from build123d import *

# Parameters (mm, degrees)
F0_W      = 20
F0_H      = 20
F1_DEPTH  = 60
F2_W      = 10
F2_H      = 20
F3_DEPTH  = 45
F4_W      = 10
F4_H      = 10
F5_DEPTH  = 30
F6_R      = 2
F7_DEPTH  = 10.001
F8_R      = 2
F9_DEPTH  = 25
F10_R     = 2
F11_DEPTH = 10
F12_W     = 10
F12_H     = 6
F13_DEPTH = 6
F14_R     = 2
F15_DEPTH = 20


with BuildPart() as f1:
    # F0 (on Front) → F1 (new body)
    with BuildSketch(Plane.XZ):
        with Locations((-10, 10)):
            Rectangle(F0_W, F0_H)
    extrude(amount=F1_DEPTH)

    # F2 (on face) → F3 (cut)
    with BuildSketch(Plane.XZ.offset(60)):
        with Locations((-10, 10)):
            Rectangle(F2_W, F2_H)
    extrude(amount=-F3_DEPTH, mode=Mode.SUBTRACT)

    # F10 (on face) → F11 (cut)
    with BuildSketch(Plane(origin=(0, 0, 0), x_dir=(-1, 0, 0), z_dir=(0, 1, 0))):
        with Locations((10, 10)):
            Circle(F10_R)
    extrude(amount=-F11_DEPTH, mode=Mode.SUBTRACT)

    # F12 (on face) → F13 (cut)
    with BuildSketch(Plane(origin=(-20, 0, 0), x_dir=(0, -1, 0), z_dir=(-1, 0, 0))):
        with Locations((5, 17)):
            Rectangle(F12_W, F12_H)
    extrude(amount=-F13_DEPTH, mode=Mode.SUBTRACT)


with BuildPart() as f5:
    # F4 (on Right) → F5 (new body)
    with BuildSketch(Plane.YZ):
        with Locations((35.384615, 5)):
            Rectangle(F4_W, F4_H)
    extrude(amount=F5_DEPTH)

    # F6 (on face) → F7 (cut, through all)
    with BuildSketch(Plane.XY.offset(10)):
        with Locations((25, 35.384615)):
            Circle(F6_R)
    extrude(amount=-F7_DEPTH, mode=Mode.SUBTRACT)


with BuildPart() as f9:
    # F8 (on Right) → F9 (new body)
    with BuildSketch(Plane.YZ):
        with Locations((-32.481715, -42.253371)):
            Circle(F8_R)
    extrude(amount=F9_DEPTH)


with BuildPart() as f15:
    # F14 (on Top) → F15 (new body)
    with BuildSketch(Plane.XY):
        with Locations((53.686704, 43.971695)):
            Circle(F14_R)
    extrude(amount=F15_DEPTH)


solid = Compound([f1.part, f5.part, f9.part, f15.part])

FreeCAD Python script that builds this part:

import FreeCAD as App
import Part
import Sketcher

V = App.Vector


def add_polygon(sketch, points):
    """Adds a closed chain of lines whose ends are joined by coincident constraints."""
    first, n = sketch.GeometryCount, len(points)
    for a, b in zip(points, points[1:] + points[:1]):
        sketch.addGeometry(Part.LineSegment(App.Vector(*a, 0), App.Vector(*b, 0)), False)
    for i in range(n):
        sketch.addConstraint(Sketcher.Constraint("Coincident", first + i, 2, first + (i + 1) % n, 1))

doc = App.newDocument("Part")
body = doc.addObject("PartDesign::Body", "Body")

# Sketch on XZ plane
sketch1 = body.newObject("Sketcher::SketchObject", "Sketch")
sketch1.AttachmentSupport = (doc.getObject("XZ_Plane"), [""])
sketch1.MapMode = "FlatFace"
add_polygon(sketch1, [(-20, 20), (-20, 0), (0, 0), (0, 20)])  # lines 0-3
sketch1.addConstraint([
    Sketcher.Constraint("Vertical", 0),
    Sketcher.Constraint("Horizontal", 1),
    Sketcher.Constraint("Vertical", 2),
    Sketcher.Constraint("Horizontal", 3),
    Sketcher.Constraint("Coincident", 1, 2, -1, 1),
    Sketcher.Constraint("Equal", 3, 0),
    Sketcher.Constraint("DistanceX", 1, 1, 1, 2, 20.0),
])
pad1 = body.newObject("PartDesign::Pad", "Pad")
pad1.Profile = sketch1
pad1.Length = 60

# Sketch on XZ plane
sketch2 = body.newObject("Sketcher::SketchObject", "Sketch001")
sketch2.AttachmentSupport = (doc.getObject("XZ_Plane"), [""])
sketch2.MapMode = "FlatFace"
sketch2.AttachmentOffset = App.Placement(V(0, 0, 60), App.Rotation())
add_polygon(sketch2, [(-15, 20), (-15, 0), (-5, 0), (-5, 20)])  # lines 0-3
sketch2.addConstraint([
    Sketcher.Constraint("Vertical", 0),
    Sketcher.Constraint("Horizontal", 1),
    Sketcher.Constraint("Vertical", 2),
    Sketcher.Constraint("Horizontal", 3),
    Sketcher.Constraint("PointOnObject", 0, 2, -1),
    Sketcher.Constraint("DistanceX", 1, 1, 1, 2, 10.0),
    Sketcher.Constraint("DistanceY", 0, 2, 0, 1, 20.0),
    Sketcher.Constraint("DistanceX", 0, 2, -1, 1, 15.0),
])
pocket1 = body.newObject("PartDesign::Pocket", "Pocket")
pocket1.Profile = sketch2
pocket1.Length = 45

# Sketch on XZ plane
sketch3 = body.newObject("Sketcher::SketchObject", "Sketch002")
sketch3.AttachmentSupport = (doc.getObject("XZ_Plane"), [""])
sketch3.MapMode = "FlatFace"
sketch3.addGeometry(Part.Circle(V(-10, 10, 0), V(0, 0, 1), 2), False)
sketch3.addConstraint([
    Sketcher.Constraint("Diameter", 0, 4.0),
    Sketcher.Constraint("DistanceX", 0, 3, -1, 1, 10.0),
    Sketcher.Constraint("DistanceY", -1, 1, 0, 3, 10.0),
])
pocket2 = body.newObject("PartDesign::Pocket", "Pocket001")
pocket2.Profile = sketch3
pocket2.Length = 10
pocket2.Reversed = True

# Sketch on YZ plane
sketch4 = body.newObject("Sketcher::SketchObject", "Sketch003")
sketch4.AttachmentSupport = (doc.getObject("YZ_Plane"), [""])
sketch4.MapMode = "FlatFace"
sketch4.AttachmentOffset = App.Placement(V(0, 0, -20), App.Rotation())
add_polygon(sketch4, [(0, 20), (0, 14), (-10, 14), (-10, 20)])  # lines 0-3
sketch4.addConstraint([
    Sketcher.Constraint("Vertical", 0),
    Sketcher.Constraint("Horizontal", 1),
    Sketcher.Constraint("Vertical", 2),
    Sketcher.Constraint("Horizontal", 3),
    Sketcher.Constraint("PointOnObject", 0, 2, -2),
    Sketcher.Constraint("DistanceX", 1, 2, 1, 1, 10.0),
    Sketcher.Constraint("DistanceY", 0, 2, 0, 1, 6.0),
    Sketcher.Constraint("DistanceY", -1, 1, 0, 2, 14.0),
])
pocket3 = body.newObject("PartDesign::Pocket", "Pocket002")
pocket3.Profile = sketch4
pocket3.Length = 6
pocket3.Reversed = True
body2 = doc.addObject("PartDesign::Body", "Body001")

# Sketch on YZ plane
sketch5 = body2.newObject("Sketcher::SketchObject", "Sketch004")
sketch5.AttachmentSupport = (doc.getObject("YZ_Plane001"), [""])
sketch5.MapMode = "FlatFace"
add_polygon(sketch5, [(30, 10), (30, 0), (40, 0), (40, 10)])  # lines 0-3
sketch5.addConstraint([
    Sketcher.Constraint("Vertical", 0),
    Sketcher.Constraint("Horizontal", 1),
    Sketcher.Constraint("Vertical", 2),
    Sketcher.Constraint("Horizontal", 3),
    Sketcher.Constraint("PointOnObject", 0, 2, -1),
    Sketcher.Constraint("Equal", 3, 0),
    Sketcher.Constraint("DistanceX", 1, 1, 1, 2, 10.0),
    Sketcher.Constraint("DistanceX", -1, 1, 0, 2, 30.384615),
])
pad2 = body2.newObject("PartDesign::Pad", "Pad001")
pad2.Profile = sketch5
pad2.Length = 30

# Sketch on XY plane
sketch6 = body2.newObject("Sketcher::SketchObject", "Sketch005")
sketch6.AttachmentSupport = (doc.getObject("XY_Plane001"), [""])
sketch6.MapMode = "FlatFace"
sketch6.AttachmentOffset = App.Placement(V(0, 0, 10), App.Rotation())
sketch6.addGeometry(Part.Circle(V(25, 35.4, 0), V(0, 0, 1), 2), False)
sketch6.addConstraint([
    Sketcher.Constraint("Diameter", 0, 4.0),
    Sketcher.Constraint("DistanceX", -1, 1, 0, 3, 25.0),
    Sketcher.Constraint("DistanceY", -1, 1, 0, 3, 35.384615),
])
pocket4 = body2.newObject("PartDesign::Pocket", "Pocket003")
pocket4.Profile = sketch6
pocket4.Type = "ThroughAll"
body3 = doc.addObject("PartDesign::Body", "Body002")

# Sketch on YZ plane
sketch7 = body3.newObject("Sketcher::SketchObject", "Sketch006")
sketch7.AttachmentSupport = (doc.getObject("YZ_Plane002"), [""])
sketch7.MapMode = "FlatFace"
sketch7.addGeometry(Part.Circle(V(-32.5, -42.3, 0), V(0, 0, 1), 2), False)
sketch7.addConstraint([
    Sketcher.Constraint("Diameter", 0, 4.0),
    Sketcher.Constraint("DistanceY", 0, 3, -1, 1, 42.253371),
    Sketcher.Constraint("DistanceX", 0, 3, -1, 1, 32.481715),
])
pad3 = body3.newObject("PartDesign::Pad", "Pad002")
pad3.Profile = sketch7
pad3.Length = 25
body4 = doc.addObject("PartDesign::Body", "Body003")

# Sketch on XY plane
sketch8 = body4.newObject("Sketcher::SketchObject", "Sketch007")
sketch8.AttachmentSupport = (doc.getObject("XY_Plane003"), [""])
sketch8.MapMode = "FlatFace"
sketch8.addGeometry(Part.Circle(V(53.7, 44, 0), V(0, 0, 1), 2), False)
sketch8.addConstraint([
    Sketcher.Constraint("Diameter", 0, 4.0),
    Sketcher.Constraint("DistanceX", -1, 1, 0, 3, 53.686704),
    Sketcher.Constraint("DistanceY", -1, 1, 0, 3, 43.971695),
])
pad4 = body4.newObject("PartDesign::Pad", "Pad003")
pad4.Profile = sketch8
pad4.Length = 20

doc.recompute()
